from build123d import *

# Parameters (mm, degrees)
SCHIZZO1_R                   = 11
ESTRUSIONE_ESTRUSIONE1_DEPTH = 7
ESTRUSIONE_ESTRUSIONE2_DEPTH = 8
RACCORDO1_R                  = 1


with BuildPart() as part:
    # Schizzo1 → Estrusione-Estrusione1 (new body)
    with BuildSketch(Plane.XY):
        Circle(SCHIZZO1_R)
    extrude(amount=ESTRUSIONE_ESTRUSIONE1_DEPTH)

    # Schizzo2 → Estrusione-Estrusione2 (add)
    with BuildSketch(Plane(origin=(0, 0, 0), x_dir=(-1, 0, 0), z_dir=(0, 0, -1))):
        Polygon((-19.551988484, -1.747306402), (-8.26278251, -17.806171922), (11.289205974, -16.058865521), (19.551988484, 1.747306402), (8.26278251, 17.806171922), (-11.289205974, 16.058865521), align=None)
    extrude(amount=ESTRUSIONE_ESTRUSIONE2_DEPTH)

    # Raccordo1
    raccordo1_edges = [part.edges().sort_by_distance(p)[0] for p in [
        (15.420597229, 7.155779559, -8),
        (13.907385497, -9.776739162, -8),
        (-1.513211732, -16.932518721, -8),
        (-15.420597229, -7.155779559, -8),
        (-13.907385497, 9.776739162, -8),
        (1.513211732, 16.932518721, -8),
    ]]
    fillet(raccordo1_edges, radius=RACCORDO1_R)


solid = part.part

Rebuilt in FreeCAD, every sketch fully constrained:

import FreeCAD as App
import Part
import Sketcher
from FreeCAD import Vector
Q = App.Units.Quantity


def edges_at(feature, points):
    """Names of the edges that pass closest to the given points."""
    edges = feature.Shape.Edges
    near = lambda p: min(range(len(edges)), key=lambda i: edges[i].distToShape(Part.Vertex(*p))[0])
    return sorted({f"Edge{near(p) + 1}" for p in points})


def add_polygon(sketch, points):
    """Adds a closed chain of lines whose ends are joined by coincident constraints."""
    first, n = sketch.GeometryCount, len(points)
    for a, b in zip(points, points[1:] + points[:1]):
        sketch.addGeometry(Part.LineSegment(App.Vector(*a, 0), App.Vector(*b, 0)), False)
    for i in range(n):
        sketch.addConstraint(Sketcher.Constraint("Coincident", first + i, 2, first + (i + 1) % n, 1))

doc = App.newDocument("Part")
body = doc.addObject("PartDesign::Body", "Body")

sketch1 = body.newObject("Sketcher::SketchObject", "Sketch")
sketch1.AttachmentSupport = (doc.getObject("XY_Plane"), [""])
sketch1.MapMode = "FlatFace"
sketch1.addGeometry(Part.Circle(Vector(0, 0, 0), Vector(0, 0, 1), 11), False)
sketch1.addConstraint(Sketcher.Constraint("Coincident", 0, 3, -1, 1))
sketch1.addConstraint(Sketcher.Constraint("Diameter", 0, Q("22 mm")))
pad1 = body.newObject("PartDesign::Pad", "Pad")
pad1.Profile = sketch1
pad1.Length = 7

sketch2 = body.newObject("Sketcher::SketchObject", "Sketch001")
sketch2.AttachmentSupport = (doc.getObject("XY_Plane"), [""])
sketch2.MapMode = "FlatFace"
add_polygon(sketch2, [(20, -2), (8, -18), (-11, -16), (-20, 2), (-8, 18), (11, 16)])
sketch2.addConstraint(Sketcher.Constraint("Symmetric", 0, 2, 3, 2, -1, 1))
sketch2.addConstraint(Sketcher.Constraint("Symmetric", 1, 2, 4, 2, -1, 1))
sketch2.addConstraint(Sketcher.Constraint("Symmetric", 2, 2, 5, 2, -1, 1))
sketch2.addConstraint(Sketcher.Constraint("Equal", 0, 1))
sketch2.addConstraint(Sketcher.Constraint("Equal", 1, 2))
sketch2.addConstraint(Sketcher.Constraint("Distance", 0, Q("19.629909 mm")))
sketch2.addConstraint(Sketcher.Constraint("DistanceY", 0, 2, -1, 1, Q("17.806172 mm")))
sketch2.addConstraint(Sketcher.Constraint("DistanceX", 2, 2, -1, 1, Q("19.551988 mm")))
sketch2.addConstraint(Sketcher.Constraint("DistanceX", 1, 2, 0, 2, Q("19.551988 mm")))
pad2 = body.newObject("PartDesign::Pad", "Pad001")
pad2.Profile = sketch2
pad2.Length = 8
pad2.Reversed = True
doc.recompute()

fillet = body.newObject("PartDesign::Fillet", "Fillet")
fillet.Base = (pad2, edges_at(pad2, [
    (15.421, 7.156, -8),
    (13.907, -9.777, -8),
    (-1.513, -16.933, -8),
    (-15.421, -7.156, -8),
    (-13.907, 9.777, -8),
    (1.513, 16.933, -8),
]))
fillet.Radius = 1

doc.recompute()
